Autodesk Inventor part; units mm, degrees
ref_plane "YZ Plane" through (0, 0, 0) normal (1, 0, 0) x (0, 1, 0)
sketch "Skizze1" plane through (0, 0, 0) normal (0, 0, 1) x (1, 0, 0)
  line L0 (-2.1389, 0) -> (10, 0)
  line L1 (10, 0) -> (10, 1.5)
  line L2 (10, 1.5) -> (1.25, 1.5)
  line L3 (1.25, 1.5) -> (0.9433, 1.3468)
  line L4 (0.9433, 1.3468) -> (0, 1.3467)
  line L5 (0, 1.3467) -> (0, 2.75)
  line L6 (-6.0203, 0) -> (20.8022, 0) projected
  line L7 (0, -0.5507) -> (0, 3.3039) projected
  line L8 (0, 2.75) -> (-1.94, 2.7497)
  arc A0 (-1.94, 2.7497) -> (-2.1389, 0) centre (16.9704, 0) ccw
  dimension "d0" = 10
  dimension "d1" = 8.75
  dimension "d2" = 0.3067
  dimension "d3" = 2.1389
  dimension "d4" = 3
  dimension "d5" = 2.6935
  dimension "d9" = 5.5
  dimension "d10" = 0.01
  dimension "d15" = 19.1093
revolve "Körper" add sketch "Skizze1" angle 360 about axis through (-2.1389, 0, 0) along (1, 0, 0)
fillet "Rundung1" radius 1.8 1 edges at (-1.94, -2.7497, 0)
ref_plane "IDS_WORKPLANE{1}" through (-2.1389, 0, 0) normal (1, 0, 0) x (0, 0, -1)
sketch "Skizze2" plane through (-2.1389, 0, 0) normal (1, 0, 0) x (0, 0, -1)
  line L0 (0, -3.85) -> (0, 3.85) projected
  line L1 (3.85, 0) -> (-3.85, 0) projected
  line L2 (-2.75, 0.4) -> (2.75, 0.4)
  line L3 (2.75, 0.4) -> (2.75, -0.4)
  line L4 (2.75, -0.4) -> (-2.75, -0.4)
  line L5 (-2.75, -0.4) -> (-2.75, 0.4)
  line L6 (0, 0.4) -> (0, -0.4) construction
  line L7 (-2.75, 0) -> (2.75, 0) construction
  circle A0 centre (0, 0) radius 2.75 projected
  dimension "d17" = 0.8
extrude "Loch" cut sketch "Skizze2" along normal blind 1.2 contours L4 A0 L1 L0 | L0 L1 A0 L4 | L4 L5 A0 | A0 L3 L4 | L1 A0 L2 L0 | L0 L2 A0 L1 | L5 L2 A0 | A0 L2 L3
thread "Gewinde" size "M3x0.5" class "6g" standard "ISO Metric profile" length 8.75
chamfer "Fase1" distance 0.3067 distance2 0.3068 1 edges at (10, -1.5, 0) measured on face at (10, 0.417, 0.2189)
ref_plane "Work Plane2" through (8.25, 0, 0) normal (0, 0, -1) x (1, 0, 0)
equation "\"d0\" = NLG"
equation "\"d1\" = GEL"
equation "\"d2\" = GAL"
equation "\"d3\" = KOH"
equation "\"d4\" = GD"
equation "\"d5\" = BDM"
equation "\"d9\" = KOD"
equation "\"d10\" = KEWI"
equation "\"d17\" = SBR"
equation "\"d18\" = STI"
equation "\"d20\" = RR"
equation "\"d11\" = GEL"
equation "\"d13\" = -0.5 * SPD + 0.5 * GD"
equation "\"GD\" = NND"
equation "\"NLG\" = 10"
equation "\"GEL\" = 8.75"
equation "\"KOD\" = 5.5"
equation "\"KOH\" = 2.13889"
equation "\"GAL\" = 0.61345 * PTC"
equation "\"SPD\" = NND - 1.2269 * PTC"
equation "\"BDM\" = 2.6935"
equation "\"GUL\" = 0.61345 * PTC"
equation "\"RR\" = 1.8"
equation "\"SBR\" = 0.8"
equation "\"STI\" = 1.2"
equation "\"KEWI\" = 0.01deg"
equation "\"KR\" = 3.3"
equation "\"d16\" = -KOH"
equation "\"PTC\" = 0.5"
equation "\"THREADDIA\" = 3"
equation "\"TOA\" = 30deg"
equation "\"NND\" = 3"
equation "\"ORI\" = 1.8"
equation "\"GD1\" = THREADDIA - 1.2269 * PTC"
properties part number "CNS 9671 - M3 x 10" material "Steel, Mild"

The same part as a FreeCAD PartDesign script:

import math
import FreeCAD as App
import Part
import Sketcher

V = App.Vector
Q = App.Units.Quantity


def edges_at(feature, points):
    """Names of the edges that pass closest to the given points."""
    edges = feature.Shape.Edges
    near = lambda p: min(range(len(edges)), key=lambda i: edges[i].distToShape(Part.Vertex(*p))[0])
    return sorted({f"Edge{near(p) + 1}" for p in points})

doc = App.newDocument("Part")
params = doc.addObject("Spreadsheet::Sheet", "Params")
for row, (alias, value) in enumerate([
    ("sketch1_width", "8.75 mm"),
    ("sketch1_height", "1.5 mm"),
    ("sketch1_length", "1.94 mm"),
    ("revolution_angle", "360 deg"),
    ("fillet_radius", "1.8 mm"),
    ("sketch2_width", "0.8 mm"),
    ("sketch2_height", "5.5 mm"),
    ("pocket1_length", "1.2 mm"),
    ("chamfer_size", "0.3067 mm"),
    ("chamfer_size2", "0.3068 mm"),
], start=1):
    params.set(f"A{row}", alias)
    params.set(f"B{row}", "=" + value)
    params.setAlias(f"B{row}", alias)

body = doc.addObject("PartDesign::Body", "Body")

# Sketch on XY plane
sketch1 = body.newObject("Sketcher::SketchObject", "Sketch")
sketch1.AttachmentSupport = (doc.getObject("XY_Plane"), [""])
sketch1.MapMode = "FlatFace"
sketch1.addGeometry(Part.ArcOfCircle(Part.Circle(V(16.976738, -0.000689, 0), V(0, 0, 1), 19.115638), math.radians(171.727478), math.radians(179.997935)), False)
sketch1.addGeometry(Part.LineSegment(V(-2.1389, 0, 0), V(10, 0, 0)), False)
sketch1.addGeometry(Part.LineSegment(V(10, 0, 0), V(10, 1.5, 0)), False)
sketch1.addGeometry(Part.LineSegment(V(10, 1.5, 0), V(1.25, 1.5, 0)), False)
sketch1.addGeometry(Part.LineSegment(V(1.25, 1.5, 0), V(0.9433, 1.3468, 0)), False)
sketch1.addGeometry(Part.LineSegment(V(0.9433, 1.3468, 0), V(0, 1.3467, 0)), False)
sketch1.addGeometry(Part.LineSegment(V(0, 1.3467, 0), V(0, 2.75, 0)), False)
sketch1.addGeometry(Part.LineSegment(V(0, 2.75, 0), V(-1.94, 2.7497, 0)), False)
sketch1.addConstraint(Sketcher.Constraint("Coincident", 0, 2, 1, 1))
sketch1.addConstraint(Sketcher.Constraint("Coincident", 1, 2, 2, 1))
sketch1.addConstraint(Sketcher.Constraint("Coincident", 2, 2, 3, 1))
sketch1.addConstraint(Sketcher.Constraint("Coincident", 3, 2, 4, 1))
sketch1.addConstraint(Sketcher.Constraint("Coincident", 4, 2, 5, 1))
sketch1.addConstraint(Sketcher.Constraint("Coincident", 5, 2, 6, 1))
sketch1.addConstraint(Sketcher.Constraint("Coincident", 6, 2, 7, 1))
sketch1.addConstraint(Sketcher.Constraint("Coincident", 7, 2, 0, 1))
sketch1.addConstraint(Sketcher.Constraint("Horizontal", 1))
sketch1.addConstraint(Sketcher.Constraint("Vertical", 2))
sketch1.addConstraint(Sketcher.Constraint("Horizontal", 3))
sketch1.addConstraint(Sketcher.Constraint("Horizontal", 5))
sketch1.addConstraint(Sketcher.Constraint("Vertical", 6))
sketch1.addConstraint(Sketcher.Constraint("PointOnObject", 0, 2, -1))
sketch1.addConstraint(Sketcher.Constraint("PointOnObject", 5, 2, -2))
sketch1.addConstraint(Sketcher.Constraint("DistanceX", -1, 1, 1, 2, Q("10 mm")))
sketch1.addConstraint(Sketcher.Constraint("DistanceX", 3, 2, 3, 1, Q("8.75 mm")))
sketch1.addConstraint(Sketcher.Constraint("DistanceY", 2, 1, 2, 2, Q("1.5 mm")))
sketch1.addConstraint(Sketcher.Constraint("DistanceX", 0, 2, -1, 1, Q("2.139 mm")))
sketch1.addConstraint(Sketcher.Constraint("Angle", 7, Q("-179.9911 deg")))
sketch1.addConstraint(Sketcher.Constraint("Radius", 0, Q("19.1156 mm")))
sketch1.addConstraint(Sketcher.Constraint("DistanceX", 4, 2, 3, 2, Q("0.3067 mm")))
sketch1.addConstraint(Sketcher.Constraint("Distance", 7, Q("1.94 mm")))
sketch1.addConstraint(Sketcher.Constraint("DistanceY", -1, 1, 6, 2, Q("2.75 mm")))
sketch1.addConstraint(Sketcher.Constraint("DistanceY", 6, 1, 6, 2, Q("1.4033 mm")))
sketch1.setExpression("Constraints[16]", "Params.sketch1_width")
sketch1.setExpression("Constraints[17]", "Params.sketch1_height")
sketch1.setExpression("Constraints[22]", "Params.sketch1_length")
revolution = body.newObject("PartDesign::Revolution", "Revolution")
revolution.Profile = sketch1
revolution.ReferenceAxis = (sketch1, ["H_Axis"])
revolution.setExpression("Angle", "Params.revolution_angle")
doc.recompute()

fillet = body.newObject("PartDesign::Fillet", "Fillet")
fillet.Base = (revolution, edges_at(revolution, [(-1.94, -2.75, 0)]))
fillet.setExpression("Radius", "Params.fillet_radius")

# Sketch on YZ plane
sketch2 = body.newObject("Sketcher::SketchObject", "Sketch001")
sketch2.AttachmentSupport = (doc.getObject("YZ_Plane"), [""])
sketch2.MapMode = "FlatFace"
sketch2.AttachmentOffset = App.Placement(V(0, 0, -2.1389), App.Rotation())
sketch2.addGeometry(Part.LineSegment(V(-0.4, -2.75, 0), V(0.4, -2.75, 0)), False)
sketch2.addGeometry(Part.LineSegment(V(0.4, -2.75, 0), V(0.4, 2.75, 0)), False)
sketch2.addGeometry(Part.LineSegment(V(0.4, 2.75, 0), V(-0.4, 2.75, 0)), False)
sketch2.addGeometry(Part.LineSegment(V(-0.4, 2.75, 0), V(-0.4, -2.75, 0)), False)
sketch2.addConstraint(Sketcher.Constraint("Coincident", 0, 2, 1, 1))
sketch2.addConstraint(Sketcher.Constraint("Coincident", 1, 2, 2, 1))
sketch2.addConstraint(Sketcher.Constraint("Coincident", 2, 2, 3, 1))
sketch2.addConstraint(Sketcher.Constraint("Coincident", 3, 2, 0, 1))
sketch2.addConstraint(Sketcher.Constraint("Horizontal", 0))
sketch2.addConstraint(Sketcher.Constraint("Vertical", 1))
sketch2.addConstraint(Sketcher.Constraint("Horizontal", 2))
sketch2.addConstraint(Sketcher.Constraint("Vertical", 3))
sketch2.addConstraint(Sketcher.Constraint("Symmetric", 0, 2, 2, 2, -1, 1))
sketch2.addConstraint(Sketcher.Constraint("DistanceX", 0, 1, 0, 2, Q("0.8 mm")))
sketch2.addConstraint(Sketcher.Constraint("DistanceY", 1, 1, 1, 2, Q("5.5 mm")))
sketch2.setExpression("Constraints[9]", "Params.sketch2_width")
sketch2.setExpression("Constraints[10]", "Params.sketch2_height")
pocket1 = body.newObject("PartDesign::Pocket", "Pocket")
pocket1.Profile = sketch2
pocket1.setExpression("Length", "Params.pocket1_length")
pocket1.Reversed = True
doc.recompute()

chamfer = body.newObject("PartDesign::Chamfer", "Chamfer")
chamfer.Base = (pocket1, edges_at(pocket1, [(10, -1.5, 0)]))
chamfer.ChamferType = "Two distances"
chamfer.setExpression("Size", "Params.chamfer_size")
chamfer.setExpression("Size2", "Params.chamfer_size2")

doc.recompute()
